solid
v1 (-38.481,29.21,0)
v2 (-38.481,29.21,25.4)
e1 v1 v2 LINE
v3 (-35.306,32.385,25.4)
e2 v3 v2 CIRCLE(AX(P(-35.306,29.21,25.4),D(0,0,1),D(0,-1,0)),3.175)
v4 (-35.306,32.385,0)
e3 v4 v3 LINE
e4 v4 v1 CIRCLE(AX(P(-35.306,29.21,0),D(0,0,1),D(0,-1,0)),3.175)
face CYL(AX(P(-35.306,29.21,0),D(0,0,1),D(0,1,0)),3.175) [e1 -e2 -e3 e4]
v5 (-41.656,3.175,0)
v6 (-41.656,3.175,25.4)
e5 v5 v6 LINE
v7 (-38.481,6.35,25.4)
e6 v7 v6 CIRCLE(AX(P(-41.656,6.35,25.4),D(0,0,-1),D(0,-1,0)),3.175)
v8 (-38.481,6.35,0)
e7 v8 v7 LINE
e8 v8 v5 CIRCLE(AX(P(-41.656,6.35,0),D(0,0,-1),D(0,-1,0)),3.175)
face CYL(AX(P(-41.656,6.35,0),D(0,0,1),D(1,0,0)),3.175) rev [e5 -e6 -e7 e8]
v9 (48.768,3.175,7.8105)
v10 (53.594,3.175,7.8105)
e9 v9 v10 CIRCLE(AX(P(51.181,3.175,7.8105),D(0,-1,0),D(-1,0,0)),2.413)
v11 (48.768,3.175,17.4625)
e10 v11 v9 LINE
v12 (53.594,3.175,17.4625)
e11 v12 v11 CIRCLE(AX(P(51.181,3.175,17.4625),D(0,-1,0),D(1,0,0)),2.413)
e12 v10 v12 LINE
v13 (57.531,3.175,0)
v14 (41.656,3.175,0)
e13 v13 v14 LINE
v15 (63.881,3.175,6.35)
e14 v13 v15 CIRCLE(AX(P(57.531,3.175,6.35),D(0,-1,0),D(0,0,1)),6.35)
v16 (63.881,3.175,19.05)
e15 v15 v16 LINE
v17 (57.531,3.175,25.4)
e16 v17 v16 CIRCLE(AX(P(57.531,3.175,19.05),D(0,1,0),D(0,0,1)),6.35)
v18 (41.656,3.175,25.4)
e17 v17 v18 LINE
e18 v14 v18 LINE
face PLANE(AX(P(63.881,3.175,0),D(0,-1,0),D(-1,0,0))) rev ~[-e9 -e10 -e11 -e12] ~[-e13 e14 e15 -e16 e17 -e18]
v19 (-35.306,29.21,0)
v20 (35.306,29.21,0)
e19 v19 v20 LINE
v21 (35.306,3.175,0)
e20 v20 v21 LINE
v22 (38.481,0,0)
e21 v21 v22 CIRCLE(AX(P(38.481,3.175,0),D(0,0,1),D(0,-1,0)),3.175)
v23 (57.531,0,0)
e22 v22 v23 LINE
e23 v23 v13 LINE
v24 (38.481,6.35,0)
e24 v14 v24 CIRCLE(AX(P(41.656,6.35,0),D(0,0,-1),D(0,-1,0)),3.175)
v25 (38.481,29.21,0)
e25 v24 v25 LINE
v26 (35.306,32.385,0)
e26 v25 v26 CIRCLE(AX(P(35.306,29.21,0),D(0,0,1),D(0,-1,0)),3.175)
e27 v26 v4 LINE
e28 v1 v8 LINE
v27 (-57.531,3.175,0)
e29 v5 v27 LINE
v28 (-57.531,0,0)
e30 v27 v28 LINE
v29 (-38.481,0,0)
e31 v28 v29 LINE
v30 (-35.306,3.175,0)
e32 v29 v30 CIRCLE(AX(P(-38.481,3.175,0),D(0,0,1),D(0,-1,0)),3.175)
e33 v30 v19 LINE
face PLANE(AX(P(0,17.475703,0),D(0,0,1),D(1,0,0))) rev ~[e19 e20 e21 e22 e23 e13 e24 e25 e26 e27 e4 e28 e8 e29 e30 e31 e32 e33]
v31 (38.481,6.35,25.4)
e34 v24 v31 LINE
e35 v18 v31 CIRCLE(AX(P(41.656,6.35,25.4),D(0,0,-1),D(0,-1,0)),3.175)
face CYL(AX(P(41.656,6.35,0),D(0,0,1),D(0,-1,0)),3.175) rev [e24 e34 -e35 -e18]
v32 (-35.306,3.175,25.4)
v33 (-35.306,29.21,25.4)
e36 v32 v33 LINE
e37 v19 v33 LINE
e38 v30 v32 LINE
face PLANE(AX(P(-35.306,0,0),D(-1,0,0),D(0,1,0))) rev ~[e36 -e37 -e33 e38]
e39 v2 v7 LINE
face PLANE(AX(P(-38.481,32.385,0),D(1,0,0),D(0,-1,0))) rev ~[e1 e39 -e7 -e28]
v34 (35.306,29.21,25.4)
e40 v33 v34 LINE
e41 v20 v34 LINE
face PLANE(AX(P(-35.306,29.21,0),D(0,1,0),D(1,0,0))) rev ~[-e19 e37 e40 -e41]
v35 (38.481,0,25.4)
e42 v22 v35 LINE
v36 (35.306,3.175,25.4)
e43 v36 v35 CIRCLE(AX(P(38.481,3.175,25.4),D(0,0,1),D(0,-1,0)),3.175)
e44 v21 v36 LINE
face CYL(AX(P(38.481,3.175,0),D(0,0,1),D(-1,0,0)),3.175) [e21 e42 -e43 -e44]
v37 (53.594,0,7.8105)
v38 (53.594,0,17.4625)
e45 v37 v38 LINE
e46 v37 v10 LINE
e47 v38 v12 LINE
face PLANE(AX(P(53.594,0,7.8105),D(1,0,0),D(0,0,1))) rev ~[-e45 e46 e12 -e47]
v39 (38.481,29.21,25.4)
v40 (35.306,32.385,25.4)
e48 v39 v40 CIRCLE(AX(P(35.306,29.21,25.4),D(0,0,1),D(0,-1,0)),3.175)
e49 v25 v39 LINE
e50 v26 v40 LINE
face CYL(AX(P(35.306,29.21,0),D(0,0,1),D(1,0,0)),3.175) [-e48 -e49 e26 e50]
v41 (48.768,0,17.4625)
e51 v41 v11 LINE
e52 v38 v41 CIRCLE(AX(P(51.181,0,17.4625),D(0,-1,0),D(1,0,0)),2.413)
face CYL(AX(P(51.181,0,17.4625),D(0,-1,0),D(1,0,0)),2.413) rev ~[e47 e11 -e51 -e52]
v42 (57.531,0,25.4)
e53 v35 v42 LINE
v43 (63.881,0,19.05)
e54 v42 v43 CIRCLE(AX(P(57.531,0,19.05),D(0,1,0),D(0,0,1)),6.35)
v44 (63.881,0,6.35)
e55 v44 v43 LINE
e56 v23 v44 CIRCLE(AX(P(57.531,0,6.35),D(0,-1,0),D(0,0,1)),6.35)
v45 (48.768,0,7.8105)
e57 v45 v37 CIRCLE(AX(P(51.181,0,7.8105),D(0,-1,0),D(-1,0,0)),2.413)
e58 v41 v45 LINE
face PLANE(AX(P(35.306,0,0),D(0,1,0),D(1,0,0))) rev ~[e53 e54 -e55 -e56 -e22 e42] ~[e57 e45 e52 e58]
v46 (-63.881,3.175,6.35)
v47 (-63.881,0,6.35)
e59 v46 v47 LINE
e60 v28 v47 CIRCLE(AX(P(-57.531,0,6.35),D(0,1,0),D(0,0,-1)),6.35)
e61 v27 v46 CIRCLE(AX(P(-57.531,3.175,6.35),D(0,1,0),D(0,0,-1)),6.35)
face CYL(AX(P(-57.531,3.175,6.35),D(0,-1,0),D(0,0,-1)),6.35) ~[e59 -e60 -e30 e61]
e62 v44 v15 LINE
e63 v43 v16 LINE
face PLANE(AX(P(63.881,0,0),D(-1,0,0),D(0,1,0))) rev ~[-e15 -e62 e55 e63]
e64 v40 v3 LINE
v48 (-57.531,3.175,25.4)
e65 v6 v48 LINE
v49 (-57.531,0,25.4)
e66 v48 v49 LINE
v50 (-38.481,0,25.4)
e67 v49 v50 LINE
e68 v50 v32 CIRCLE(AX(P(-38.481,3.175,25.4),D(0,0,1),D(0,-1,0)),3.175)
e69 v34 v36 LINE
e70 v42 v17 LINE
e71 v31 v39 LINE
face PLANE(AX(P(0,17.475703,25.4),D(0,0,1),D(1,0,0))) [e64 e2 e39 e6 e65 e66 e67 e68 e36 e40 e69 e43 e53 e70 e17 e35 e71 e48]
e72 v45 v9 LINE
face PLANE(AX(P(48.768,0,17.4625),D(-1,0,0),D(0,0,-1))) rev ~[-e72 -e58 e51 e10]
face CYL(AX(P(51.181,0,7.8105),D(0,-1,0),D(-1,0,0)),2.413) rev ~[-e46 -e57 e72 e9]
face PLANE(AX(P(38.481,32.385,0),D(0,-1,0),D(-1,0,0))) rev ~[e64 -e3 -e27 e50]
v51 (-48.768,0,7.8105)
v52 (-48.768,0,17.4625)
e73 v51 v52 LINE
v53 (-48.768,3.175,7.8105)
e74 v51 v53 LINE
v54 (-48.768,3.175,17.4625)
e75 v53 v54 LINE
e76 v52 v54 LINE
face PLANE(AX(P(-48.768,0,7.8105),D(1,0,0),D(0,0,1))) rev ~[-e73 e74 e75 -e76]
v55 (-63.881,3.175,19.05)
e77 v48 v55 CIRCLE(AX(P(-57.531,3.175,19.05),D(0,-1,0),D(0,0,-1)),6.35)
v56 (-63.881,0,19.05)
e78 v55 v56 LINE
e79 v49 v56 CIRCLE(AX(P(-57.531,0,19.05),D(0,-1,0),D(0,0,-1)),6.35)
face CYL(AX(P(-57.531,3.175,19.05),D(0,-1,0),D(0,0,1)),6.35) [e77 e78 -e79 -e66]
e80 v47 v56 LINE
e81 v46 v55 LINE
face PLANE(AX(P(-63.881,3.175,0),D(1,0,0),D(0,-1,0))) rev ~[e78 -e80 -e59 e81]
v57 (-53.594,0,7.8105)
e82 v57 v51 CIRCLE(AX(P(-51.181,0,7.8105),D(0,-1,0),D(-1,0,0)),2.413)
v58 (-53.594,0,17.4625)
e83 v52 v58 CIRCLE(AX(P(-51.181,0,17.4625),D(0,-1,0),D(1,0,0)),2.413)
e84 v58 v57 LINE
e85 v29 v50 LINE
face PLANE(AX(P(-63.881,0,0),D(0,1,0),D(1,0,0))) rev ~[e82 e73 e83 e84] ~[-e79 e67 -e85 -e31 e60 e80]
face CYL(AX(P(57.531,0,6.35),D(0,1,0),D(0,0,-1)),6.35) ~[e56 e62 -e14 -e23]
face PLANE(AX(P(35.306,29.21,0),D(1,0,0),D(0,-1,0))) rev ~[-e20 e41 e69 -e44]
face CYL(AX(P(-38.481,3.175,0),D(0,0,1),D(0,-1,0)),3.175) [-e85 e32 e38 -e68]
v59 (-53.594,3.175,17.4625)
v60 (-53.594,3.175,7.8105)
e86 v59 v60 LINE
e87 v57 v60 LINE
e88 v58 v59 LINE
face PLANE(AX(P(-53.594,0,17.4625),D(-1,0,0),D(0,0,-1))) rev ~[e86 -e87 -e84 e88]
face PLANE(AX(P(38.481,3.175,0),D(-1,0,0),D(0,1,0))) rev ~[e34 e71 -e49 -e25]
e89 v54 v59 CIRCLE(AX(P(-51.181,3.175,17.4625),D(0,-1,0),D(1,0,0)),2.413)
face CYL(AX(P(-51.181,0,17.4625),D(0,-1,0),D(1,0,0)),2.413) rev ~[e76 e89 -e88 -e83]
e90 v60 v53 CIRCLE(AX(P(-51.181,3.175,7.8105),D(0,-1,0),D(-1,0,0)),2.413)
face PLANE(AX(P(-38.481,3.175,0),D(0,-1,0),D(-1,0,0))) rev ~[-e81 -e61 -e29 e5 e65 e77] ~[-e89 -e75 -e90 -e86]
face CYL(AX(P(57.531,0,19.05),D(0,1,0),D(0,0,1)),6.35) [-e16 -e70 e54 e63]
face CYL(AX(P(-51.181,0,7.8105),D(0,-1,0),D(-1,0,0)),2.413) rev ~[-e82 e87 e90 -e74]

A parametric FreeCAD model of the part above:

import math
import FreeCAD as App
import Part
import Sketcher

V = App.Vector
Q = App.Units.Quantity


def edges_at(feature, points):
    """Names of the edges that pass closest to the given points."""
    edges = feature.Shape.Edges
    near = lambda p: min(range(len(edges)), key=lambda i: edges[i].distToShape(Part.Vertex(*p))[0])
    return sorted({f"Edge{near(p) + 1}" for p in points})


def add_polygon(sketch, points):
    """Adds a closed chain of lines whose ends are joined by coincident constraints."""
    first, n = sketch.GeometryCount, len(points)
    for a, b in zip(points, points[1:] + points[:1]):
        sketch.addGeometry(Part.LineSegment(App.Vector(*a, 0), App.Vector(*b, 0)), False)
    for i in range(n):
        sketch.addConstraint(Sketcher.Constraint("Coincident", first + i, 2, first + (i + 1) % n, 1))

doc = App.newDocument("Part")
params = doc.addObject("Spreadsheet::Sheet", "Params")
for row, (alias, value) in enumerate([
    ("sketch1_width", "1 in"),
    ("sketch1_width2", "2.78 in"),
    ("sketch1_width3", "3.03 in"),
    ("sketch1_height", "1.15 in"),
    ("sketch1_height2", "0.125 in"),
    ("pad1_length", "1 in"),
    ("fillet_radius", "0.125 in"),
    ("sketch2_radius", "0.095 in"),
    ("sketch2_height", "0.38 in"),
    ("fillet2_radius", "0.25 in"),
], start=1):
    params.set(f"A{row}", alias)
    params.set(f"B{row}", "=" + value)
    params.setAlias(f"B{row}", alias)

body = doc.addObject("PartDesign::Body", "Body")

sketch1 = body.newObject("Sketcher::SketchObject", "Sketch")
sketch1.AttachmentSupport = (doc.getObject("XY_Plane"), [""])
sketch1.MapMode = "FlatFace"
add_polygon(sketch1, [(-35.306, 29.21), (35.306, 29.21), (35.306, 0), (63.881, 0), (63.881, 3.175), (38.481, 3.175), (38.481, 32.385), (-38.481, 32.385), (-38.481, 3.175), (-63.881, 3.175), (-63.881, 0), (-35.306, 0)])
sketch1.addConstraint(Sketcher.Constraint("Horizontal", 0))
sketch1.addConstraint(Sketcher.Constraint("Vertical", 1))
sketch1.addConstraint(Sketcher.Constraint("Horizontal", 2))
sketch1.addConstraint(Sketcher.Constraint("Vertical", 3))
sketch1.addConstraint(Sketcher.Constraint("Horizontal", 4))
sketch1.addConstraint(Sketcher.Constraint("Vertical", 5))
sketch1.addConstraint(Sketcher.Constraint("Horizontal", 6))
sketch1.addConstraint(Sketcher.Constraint("Vertical", 7))
sketch1.addConstraint(Sketcher.Constraint("Horizontal", 8))
sketch1.addConstraint(Sketcher.Constraint("Vertical", 9))
sketch1.addConstraint(Sketcher.Constraint("Horizontal", 10))
sketch1.addConstraint(Sketcher.Constraint("Vertical", 11))
sketch1.addConstraint(Sketcher.Constraint("Symmetric", 2, 2, 9, 2, -1, 1))
sketch1.addConstraint(Sketcher.Constraint("Symmetric", 4, 2, 7, 2, -2))
sketch1.addConstraint(Sketcher.Constraint("Symmetric", 1, 2, 10, 2, -2))
sketch1.addConstraint(Sketcher.Constraint("Equal", 1, 5))
sketch1.addConstraint(Sketcher.Constraint("DistanceX", 4, 2, 4, 1, Q("1 in")))
sketch1.addConstraint(Sketcher.Constraint("DistanceX", 0, 1, 0, 2, Q("2.78 in")))
sketch1.addConstraint(Sketcher.Constraint("DistanceX", 6, 2, 6, 1, Q("3.03 in")))
sketch1.addConstraint(Sketcher.Constraint("DistanceY", 1, 2, 1, 1, Q("1.15 in")))
sketch1.addConstraint(Sketcher.Constraint("DistanceY", 3, 1, 3, 2, Q("0.125 in")))
sketch1.setExpression("Constraints[28]", "Params.sketch1_width")
sketch1.setExpression("Constraints[29]", "Params.sketch1_width2")
sketch1.setExpression("Constraints[30]", "Params.sketch1_width3")
sketch1.setExpression("Constraints[31]", "Params.sketch1_height")
sketch1.setExpression("Constraints[32]", "Params.sketch1_height2")
pad1 = body.newObject("PartDesign::Pad", "Pad")
pad1.Profile = sketch1
pad1.setExpression("Length", "Params.pad1_length")
doc.recompute()

fillet = body.newObject("PartDesign::Fillet", "Fillet")
fillet.Base = (pad1, edges_at(pad1, [
    (-35.306, 0, 12.7),
    (35.306, 0, 12.7),
    (-38.481, 3.175, 12.7),
    (-38.481, 32.385, 12.7),
    (38.481, 32.385, 12.7),
    (38.481, 3.175, 12.7),
]))
fillet.setExpression("Radius", "Params.fillet_radius")

sketch2 = body.newObject("Sketcher::SketchObject", "Sketch001")
sketch2.AttachmentSupport = (doc.getObject("XZ_Plane"), [""])
sketch2.MapMode = "FlatFace"
sketch2.addGeometry(Part.ArcOfCircle(Part.Circle(V(-51.181, 7.8105, 0), V(0, 0, 1), 2.413), math.radians(180), math.radians(360)), False)
sketch2.addGeometry(Part.LineSegment(V(-48.768, 7.8105, 0), V(-48.768, 17.4625, 0)), False)
sketch2.addGeometry(Part.ArcOfCircle(Part.Circle(V(-51.181, 17.4625, 0), V(0, 0, 1), 2.413), math.radians(0), math.radians(180)), False)
sketch2.addGeometry(Part.LineSegment(V(-53.594, 17.4625, 0), V(-53.594, 7.8105, 0)), False)
sketch2.addGeometry(Part.LineSegment(V(48.768, 17.4625, 0), V(48.768, 7.8105, 0)), False)
sketch2.addGeometry(Part.ArcOfCircle(Part.Circle(V(51.181, 7.8105, 0), V(0, 0, 1), 2.413), math.radians(180), math.radians(360)), False)
sketch2.addGeometry(Part.LineSegment(V(53.594, 7.8105, 0), V(53.594, 17.4625, 0)), False)
sketch2.addGeometry(Part.ArcOfCircle(Part.Circle(V(51.181, 17.4625, 0), V(0, 0, 1), 2.413), math.radians(0), math.radians(180)), False)
sketch2.addConstraint(Sketcher.Constraint("Tangent", 0, 2, 1, 1))
sketch2.addConstraint(Sketcher.Constraint("Tangent", 1, 2, 2, 1))
sketch2.addConstraint(Sketcher.Constraint("Tangent", 2, 2, 3, 1))
sketch2.addConstraint(Sketcher.Constraint("Tangent", 3, 2, 0, 1))
sketch2.addConstraint(Sketcher.Constraint("Tangent", 4, 2, 5, 1))
sketch2.addConstraint(Sketcher.Constraint("Tangent", 5, 2, 6, 1))
sketch2.addConstraint(Sketcher.Constraint("Tangent", 6, 2, 7, 1))
sketch2.addConstraint(Sketcher.Constraint("Tangent", 7, 2, 4, 1))
sketch2.addConstraint(Sketcher.Constraint("Vertical", 1))
sketch2.addConstraint(Sketcher.Constraint("Vertical", 3))
sketch2.addConstraint(Sketcher.Constraint("Vertical", 4))
sketch2.addConstraint(Sketcher.Constraint("Vertical", 6))
sketch2.addConstraint(Sketcher.Constraint("Equal", 2, 5))
sketch2.addConstraint(Sketcher.Constraint("Symmetric", 0, 3, 5, 3, -2))
sketch2.addConstraint(Sketcher.Constraint("Horizontal", 2, 3, 7, 3))
sketch2.addConstraint(Sketcher.Constraint("Radius", 0, Q("0.095 in")))
sketch2.addConstraint(Sketcher.Constraint("DistanceY", 1, 1, 1, 2, Q("0.38 in")))
sketch2.addConstraint(Sketcher.Constraint("DistanceX", 0, 2, -1, 1, Q("1.92 in")))
sketch2.addConstraint(Sketcher.Constraint("DistanceY", -1, 1, 2, 3, Q("0.6875 in")))
sketch2.setExpression("Constraints[15]", "Params.sketch2_radius")
sketch2.setExpression("Constraints[16]", "Params.sketch2_height")
pocket1 = body.newObject("PartDesign::Pocket", "Pocket")
pocket1.Profile = sketch2
pocket1.Type = "ThroughAll"
doc.recompute()

fillet2 = body.newObject("PartDesign::Fillet", "Fillet001")
fillet2.Base = (pocket1, edges_at(pocket1, [
    (-63.881, 1.587, 0),
    (-63.881, 1.587, 25.4),
    (63.881, 1.587, 25.4),
    (63.881, 1.587, 0),
]))
fillet2.setExpression("Radius", "Params.fillet2_radius")

doc.recompute()
